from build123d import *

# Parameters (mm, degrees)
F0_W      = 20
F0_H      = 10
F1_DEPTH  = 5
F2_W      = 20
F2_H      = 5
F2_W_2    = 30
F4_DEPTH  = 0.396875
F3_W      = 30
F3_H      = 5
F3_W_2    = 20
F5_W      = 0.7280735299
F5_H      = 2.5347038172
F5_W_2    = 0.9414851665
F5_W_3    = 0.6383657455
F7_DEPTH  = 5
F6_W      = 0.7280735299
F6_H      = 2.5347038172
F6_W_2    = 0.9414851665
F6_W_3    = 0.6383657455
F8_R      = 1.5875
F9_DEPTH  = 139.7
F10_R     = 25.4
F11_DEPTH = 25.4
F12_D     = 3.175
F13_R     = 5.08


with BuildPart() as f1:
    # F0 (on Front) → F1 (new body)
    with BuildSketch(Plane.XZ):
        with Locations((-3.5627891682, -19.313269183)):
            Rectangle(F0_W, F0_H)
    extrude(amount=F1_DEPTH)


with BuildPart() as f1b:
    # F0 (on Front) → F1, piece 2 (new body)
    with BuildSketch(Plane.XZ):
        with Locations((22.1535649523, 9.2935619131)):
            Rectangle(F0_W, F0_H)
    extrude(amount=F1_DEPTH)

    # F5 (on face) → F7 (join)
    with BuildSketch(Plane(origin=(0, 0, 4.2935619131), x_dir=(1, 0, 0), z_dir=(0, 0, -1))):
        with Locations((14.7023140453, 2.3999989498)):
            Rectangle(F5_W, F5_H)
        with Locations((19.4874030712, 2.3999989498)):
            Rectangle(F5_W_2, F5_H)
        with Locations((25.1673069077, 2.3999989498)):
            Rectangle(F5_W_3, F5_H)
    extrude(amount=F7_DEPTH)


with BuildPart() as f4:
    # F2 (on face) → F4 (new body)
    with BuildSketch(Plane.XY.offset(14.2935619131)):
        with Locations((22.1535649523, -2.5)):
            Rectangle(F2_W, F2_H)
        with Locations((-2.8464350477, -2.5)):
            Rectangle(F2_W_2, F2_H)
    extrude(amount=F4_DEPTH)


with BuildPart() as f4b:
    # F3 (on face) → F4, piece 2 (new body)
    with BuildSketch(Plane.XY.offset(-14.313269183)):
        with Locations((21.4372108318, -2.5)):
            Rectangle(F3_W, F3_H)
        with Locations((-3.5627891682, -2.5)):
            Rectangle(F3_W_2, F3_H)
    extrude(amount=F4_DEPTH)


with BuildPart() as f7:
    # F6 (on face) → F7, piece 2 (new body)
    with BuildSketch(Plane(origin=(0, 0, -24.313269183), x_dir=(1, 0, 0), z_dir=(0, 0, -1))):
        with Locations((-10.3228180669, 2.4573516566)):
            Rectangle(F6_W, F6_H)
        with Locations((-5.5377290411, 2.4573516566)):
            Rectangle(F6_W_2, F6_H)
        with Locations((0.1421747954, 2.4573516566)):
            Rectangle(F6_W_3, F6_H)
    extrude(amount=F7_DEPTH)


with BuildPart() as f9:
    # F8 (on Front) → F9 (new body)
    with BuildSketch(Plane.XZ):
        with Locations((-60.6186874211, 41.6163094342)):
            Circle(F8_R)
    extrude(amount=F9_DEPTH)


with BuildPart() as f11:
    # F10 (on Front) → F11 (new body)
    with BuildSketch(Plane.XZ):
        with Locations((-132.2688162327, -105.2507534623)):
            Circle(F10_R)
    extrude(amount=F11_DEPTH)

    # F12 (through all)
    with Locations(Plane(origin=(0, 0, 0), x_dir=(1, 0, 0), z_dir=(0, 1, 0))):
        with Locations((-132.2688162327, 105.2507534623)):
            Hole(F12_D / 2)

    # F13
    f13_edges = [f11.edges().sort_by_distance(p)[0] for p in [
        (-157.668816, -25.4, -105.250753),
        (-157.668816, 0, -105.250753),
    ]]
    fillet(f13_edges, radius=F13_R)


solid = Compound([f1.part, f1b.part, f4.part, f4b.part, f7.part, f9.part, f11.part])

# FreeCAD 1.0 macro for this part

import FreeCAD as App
import Part
import Sketcher
Q = App.Units.Quantity


def edges_at(feature, points):
    """Names of the edges that pass closest to the given points."""
    edges = feature.Shape.Edges
    near = lambda p: min(range(len(edges)), key=lambda i: edges[i].distToShape(Part.Vertex(*p))[0])
    return sorted({f"Edge{near(p) + 1}" for p in points})

doc = App.newDocument("Part")
params = doc.addObject("Spreadsheet::Sheet", "Params")
for row, (alias, value) in enumerate([
    ("pad1_length", "5 mm"),
    ("pad2_length", "5 mm"),
    ("pad3_length", "5 mm"),
    ("pad4_length", "0.015625 in"),
    ("pad5_length", "0.015625 in"),
    ("pad6_length", "5 mm"),
    ("sketch7_diameter", "0.125 in"),
    ("pad7_length", "5.5 in"),
    ("sketch8_diameter", "2 in"),
    ("pad8_length", "1 in"),
    ("sketch9_diameter", "0.125 in"),
    ("hole_diameter", "0.125 in"),
    ("fillet_radius", "0.2 in"),
], start=1):
    params.set(f"A{row}", alias)
    params.set(f"B{row}", "=" + value)
    params.setAlias(f"B{row}", alias)

body = doc.addObject("PartDesign::Body", "Body")

sketch1 = body.newObject("Sketcher::SketchObject", "Sketch")
sketch1.AttachmentSupport = (doc.getObject("XZ_Plane"), [""])
sketch1.MapMode = "FlatFace"
sketch1.addGeometry([
    Part.LineSegment(App.Vector(-14, -14, 0), App.Vector(-14, -24, 0)),
    Part.LineSegment(App.Vector(-14, -24, 0), App.Vector(6, -24, 0)),
    Part.LineSegment(App.Vector(6, -24, 0), App.Vector(6, -14, 0)),
    Part.LineSegment(App.Vector(6, -14, 0), App.Vector(-14, -14, 0)),
], False)
sketch1.addConstraint([
    Sketcher.Constraint("Coincident", 0, 2, 1, 1),
    Sketcher.Constraint("Coincident", 1, 2, 2, 1),
    Sketcher.Constraint("Coincident", 2, 2, 3, 1),
    Sketcher.Constraint("Coincident", 3, 2, 0, 1),
    Sketcher.Constraint("Vertical", 0),
    Sketcher.Constraint("Horizontal", 1),
    Sketcher.Constraint("Vertical", 2),
    Sketcher.Constraint("Horizontal", 3),
    Sketcher.Constraint("DistanceX", 1, 1, 1, 2, 20.0),
    Sketcher.Constraint("DistanceY", 0, 2, 0, 1, 10.0),
    Sketcher.Constraint("DistanceX", 0, 2, -1, 1, 13.562789),
    Sketcher.Constraint("DistanceY", 0, 2, -1, 1, 24.313269),
])
pad1 = body.newObject("PartDesign::Pad", "Pad")
pad1.Profile = sketch1
pad1.setExpression("Length", "Params.pad1_length")
body2 = doc.addObject("PartDesign::Body", "Body001")

sketch2 = body2.newObject("Sketcher::SketchObject", "Sketch001")
sketch2.AttachmentSupport = (doc.getObject("XZ_Plane001"), [""])
sketch2.MapMode = "FlatFace"
sketch2.addGeometry([
    Part.LineSegment(App.Vector(12, 14, 0), App.Vector(12, 4, 0)),
    Part.LineSegment(App.Vector(12, 4, 0), App.Vector(32, 4, 0)),
    Part.LineSegment(App.Vector(32, 4, 0), App.Vector(32, 14, 0)),
    Part.LineSegment(App.Vector(32, 14, 0), App.Vector(12, 14, 0)),
], False)
sketch2.addConstraint([
    Sketcher.Constraint("Coincident", 0, 2, 1, 1),
    Sketcher.Constraint("Coincident", 1, 2, 2, 1),
    Sketcher.Constraint("Coincident", 2, 2, 3, 1),
    Sketcher.Constraint("Coincident", 3, 2, 0, 1),
    Sketcher.Constraint("Vertical", 0),
    Sketcher.Constraint("Horizontal", 1),
    Sketcher.Constraint("Vertical", 2),
    Sketcher.Constraint("Horizontal", 3),
    Sketcher.Constraint("DistanceX", 1, 1, 1, 2, 20.0),
    Sketcher.Constraint("DistanceY", 0, 2, 0, 1, 10.0),
    Sketcher.Constraint("DistanceY", -1, 1, 0, 2, 4.293562),
    Sketcher.Constraint("DistanceX", -1, 1, 0, 2, 12.153565),
])
pad2 = body2.newObject("PartDesign::Pad", "Pad001")
pad2.Profile = sketch2
pad2.setExpression("Length", "Params.pad2_length")

sketch3 = body2.newObject("Sketcher::SketchObject", "Sketch002")
sketch3.AttachmentSupport = (doc.getObject("XY_Plane001"), [""])
sketch3.MapMode = "FlatFace"
sketch3.AttachmentOffset = App.Placement(App.Vector(0, 0, 4.293562), App.Rotation())
sketch3.addGeometry([
    Part.LineSegment(App.Vector(14.3, -3.7, 0), App.Vector(14.3, -1.1, 0)),
    Part.LineSegment(App.Vector(14.3, -1.1, 0), App.Vector(15.1, -1.1, 0)),
    Part.LineSegment(App.Vector(15.1, -1.1, 0), App.Vector(15.1, -3.7, 0)),
    Part.LineSegment(App.Vector(15.1, -3.7, 0), App.Vector(14.3, -3.7, 0)),
    Part.LineSegment(App.Vector(19, -3.7, 0), App.Vector(19, -1.1, 0)),
    Part.LineSegment(App.Vector(19, -1.1, 0), App.Vector(20, -1.1, 0)),
    Part.LineSegment(App.Vector(20, -1.1, 0), App.Vector(20, -3.7, 0)),
    Part.LineSegment(App.Vector(20, -3.7, 0), App.Vector(19, -3.7, 0)),
    Part.LineSegment(App.Vector(24.8, -3.7, 0), App.Vector(24.8, -1.1, 0)),
    Part.LineSegment(App.Vector(24.8, -1.1, 0), App.Vector(25.5, -1.1, 0)),
    Part.LineSegment(App.Vector(25.5, -1.1, 0), App.Vector(25.5, -3.7, 0)),
    Part.LineSegment(App.Vector(25.5, -3.7, 0), App.Vector(24.8, -3.7, 0)),
], False)
sketch3.addConstraint([
    Sketcher.Constraint("Coincident", 0, 2, 1, 1),
    Sketcher.Constraint("Coincident", 1, 2, 2, 1),
    Sketcher.Constraint("Coincident", 2, 2, 3, 1),
    Sketcher.Constraint("Coincident", 3, 2, 0, 1),
    Sketcher.Constraint("Coincident", 4, 2, 5, 1),
    Sketcher.Constraint("Coincident", 5, 2, 6, 1),
    Sketcher.Constraint("Coincident", 6, 2, 7, 1),
    Sketcher.Constraint("Coincident", 7, 2, 4, 1),
    Sketcher.Constraint("Coincident", 8, 2, 9, 1),
    Sketcher.Constraint("Coincident", 9, 2, 10, 1),
    Sketcher.Constraint("Coincident", 10, 2, 11, 1),
    Sketcher.Constraint("Coincident", 11, 2, 8, 1),
    Sketcher.Constraint("Vertical", 0),
    Sketcher.Constraint("Horizontal", 1),
    Sketcher.Constraint("Vertical", 2),
    Sketcher.Constraint("Horizontal", 3),
    Sketcher.Constraint("Vertical", 4),
    Sketcher.Constraint("Horizontal", 5),
    Sketcher.Constraint("Vertical", 6),
    Sketcher.Constraint("Horizontal", 7),
    Sketcher.Constraint("Vertical", 8),
    Sketcher.Constraint("Horizontal", 9),
    Sketcher.Constraint("Vertical", 10),
    Sketcher.Constraint("Horizontal", 11),
    Sketcher.Constraint("Horizontal", 1, 2, 4, 2),
    Sketcher.Constraint("Horizontal", 3, 2, 6, 2),
    Sketcher.Constraint("Horizontal", 5, 2, 8, 2),
    Sketcher.Constraint("Horizontal", 7, 2, 10, 2),
    Sketcher.Constraint("DistanceX", 1, 1, 1, 2, 0.728074),
    Sketcher.Constraint("DistanceX", 5, 1, 5, 2, 0.941485),
    Sketcher.Constraint("DistanceX", 9, 1, 9, 2, 0.638366),
    Sketcher.Constraint("DistanceY", 0, 1, 0, 2, 2.534704),
    Sketcher.Constraint("DistanceX", -1, 1, 1, 2, 15.066351),
    Sketcher.Constraint("DistanceY", 2, 2, -1, 1, 3.667351),
    Sketcher.Constraint("DistanceX", -1, 1, 4, 2, 19.01666),
    Sketcher.Constraint("DistanceX", -1, 1, 9, 2, 25.48649),
])
pad3 = body2.newObject("PartDesign::Pad", "Pad002")
pad3.Profile = sketch3
pad3.setExpression("Length", "Params.pad3_length")
pad3.Reversed = True
body3 = doc.addObject("PartDesign::Body", "Body002")

sketch4 = body3.newObject("Sketcher::SketchObject", "Sketch003")
sketch4.AttachmentSupport = (doc.getObject("XY_Plane002"), [""])
sketch4.MapMode = "FlatFace"
sketch4.AttachmentOffset = App.Placement(App.Vector(0, 0, 14.293562), App.Rotation())
sketch4.addGeometry([
    Part.LineSegment(App.Vector(32, -5, 0), App.Vector(32, 0, 0)),
    Part.LineSegment(App.Vector(32, 0, 0), App.Vector(-18, 0, 0)),
    Part.LineSegment(App.Vector(-18, 0, 0), App.Vector(-18, -5, 0)),
    Part.LineSegment(App.Vector(-18, -5, 0), App.Vector(32, -5, 0)),
], False)
sketch4.addConstraint([
    Sketcher.Constraint("Coincident", 0, 2, 1, 1),
    Sketcher.Constraint("Coincident", 1, 2, 2, 1),
    Sketcher.Constraint("Coincident", 2, 2, 3, 1),
    Sketcher.Constraint("Coincident", 3, 2, 0, 1),
    Sketcher.Constraint("Vertical", 0),
    Sketcher.Constraint("Horizontal", 1),
    Sketcher.Constraint("Vertical", 2),
    Sketcher.Constraint("Horizontal", 3),
    Sketcher.Constraint("PointOnObject", 0, 2, -1),
    Sketcher.Constraint("DistanceX", 1, 2, 1, 1, 50.0),
    Sketcher.Constraint("DistanceY", 0, 1, 0, 2, 5.0),
    Sketcher.Constraint("DistanceX", -1, 1, 0, 2, 32.153565),
])
pad4 = body3.newObject("PartDesign::Pad", "Pad003")
pad4.Profile = sketch4
pad4.setExpression("Length", "Params.pad4_length")
body4 = doc.addObject("PartDesign::Body", "Body003")

sketch5 = body4.newObject("Sketcher::SketchObject", "Sketch004")
sketch5.AttachmentSupport = (doc.getObject("XY_Plane003"), [""])
sketch5.MapMode = "FlatFace"
sketch5.AttachmentOffset = App.Placement(App.Vector(0, 0, -14.313269), App.Rotation())
sketch5.addGeometry([
    Part.LineSegment(App.Vector(36, -5, 0), App.Vector(36, 0, 0)),
    Part.LineSegment(App.Vector(36, 0, 0), App.Vector(-14, 0, 0)),
    Part.LineSegment(App.Vector(-14, 0, 0), App.Vector(-14, -5, 0)),
    Part.LineSegment(App.Vector(-14, -5, 0), App.Vector(36, -5, 0)),
], False)
sketch5.addConstraint([
    Sketcher.Constraint("Coincident", 0, 2, 1, 1),
    Sketcher.Constraint("Coincident", 1, 2, 2, 1),
    Sketcher.Constraint("Coincident", 2, 2, 3, 1),
    Sketcher.Constraint("Coincident", 3, 2, 0, 1),
    Sketcher.Constraint("Vertical", 0),
    Sketcher.Constraint("Horizontal", 1),
    Sketcher.Constraint("Vertical", 2),
    Sketcher.Constraint("Horizontal", 3),
    Sketcher.Constraint("PointOnObject", 0, 2, -1),
    Sketcher.Constraint("DistanceX", 1, 2, 1, 1, 50.0),
    Sketcher.Constraint("DistanceY", 0, 1, 0, 2, 5.0),
    Sketcher.Constraint("DistanceX", -1, 1, 0, 2, 36.437211),
])
pad5 = body4.newObject("PartDesign::Pad", "Pad004")
pad5.Profile = sketch5
pad5.setExpression("Length", "Params.pad5_length")
body5 = doc.addObject("PartDesign::Body", "Body004")
body5.AllowCompound = True

sketch6 = body5.newObject("Sketcher::SketchObject", "Sketch005")
sketch6.AttachmentSupport = (doc.getObject("XY_Plane004"), [""])
sketch6.MapMode = "FlatFace"
sketch6.AttachmentOffset = App.Placement(App.Vector(0, 0, -24.313269), App.Rotation())
sketch6.addGeometry([
    Part.LineSegment(App.Vector(-10.7, -3.7, 0), App.Vector(-10.7, -1.2, 0)),
    Part.LineSegment(App.Vector(-10.7, -1.2, 0), App.Vector(-10, -1.2, 0)),
    Part.LineSegment(App.Vector(-10, -1.2, 0), App.Vector(-10, -3.7, 0)),
    Part.LineSegment(App.Vector(-10, -3.7, 0), App.Vector(-10.7, -3.7, 0)),
    Part.LineSegment(App.Vector(-6, -3.7, 0), App.Vector(-6, -1.2, 0)),
    Part.LineSegment(App.Vector(-6, -1.2, 0), App.Vector(-5.1, -1.2, 0)),
    Part.LineSegment(App.Vector(-5.1, -1.2, 0), App.Vector(-5.1, -3.7, 0)),
    Part.LineSegment(App.Vector(-5.1, -3.7, 0), App.Vector(-6, -3.7, 0)),
    Part.LineSegment(App.Vector(-0.2, -3.7, 0), App.Vector(-0.2, -1.2, 0)),
    Part.LineSegment(App.Vector(-0.2, -1.2, 0), App.Vector(0.5, -1.2, 0)),
    Part.LineSegment(App.Vector(0.5, -1.2, 0), App.Vector(0.5, -3.7, 0)),
    Part.LineSegment(App.Vector(0.5, -3.7, 0), App.Vector(-0.2, -3.7, 0)),
], False)
sketch6.addConstraint([
    Sketcher.Constraint("Coincident", 0, 2, 1, 1),
    Sketcher.Constraint("Coincident", 1, 2, 2, 1),
    Sketcher.Constraint("Coincident", 2, 2, 3, 1),
    Sketcher.Constraint("Coincident", 3, 2, 0, 1),
    Sketcher.Constraint("Coincident", 4, 2, 5, 1),
    Sketcher.Constraint("Coincident", 5, 2, 6, 1),
    Sketcher.Constraint("Coincident", 6, 2, 7, 1),
    Sketcher.Constraint("Coincident", 7, 2, 4, 1),
    Sketcher.Constraint("Coincident", 8, 2, 9, 1),
    Sketcher.Constraint("Coincident", 9, 2, 10, 1),
    Sketcher.Constraint("Coincident", 10, 2, 11, 1),
    Sketcher.Constraint("Coincident", 11, 2, 8, 1),
    Sketcher.Constraint("Vertical", 0),
    Sketcher.Constraint("Horizontal", 1),
    Sketcher.Constraint("Vertical", 2),
    Sketcher.Constraint("Horizontal", 3),
    Sketcher.Constraint("Vertical", 4),
    Sketcher.Constraint("Horizontal", 5),
    Sketcher.Constraint("Vertical", 6),
    Sketcher.Constraint("Horizontal", 7),
    Sketcher.Constraint("Vertical", 8),
    Sketcher.Constraint("Horizontal", 9),
    Sketcher.Constraint("Vertical", 10),
    Sketcher.Constraint("Horizontal", 11),
    Sketcher.Constraint("Horizontal", 1, 2, 4, 2),
    Sketcher.Constraint("Horizontal", 3, 2, 6, 2),
    Sketcher.Constraint("Horizontal", 5, 2, 8, 2),
    Sketcher.Constraint("Horizontal", 7, 2, 10, 2),
    Sketcher.Constraint("DistanceY", 0, 2, -1, 1, 1.19),
    Sketcher.Constraint("DistanceX", 1, 1, 1, 2, 0.728074),
    Sketcher.Constraint("DistanceX", 5, 1, 5, 2, 0.941485),
    Sketcher.Constraint("DistanceX", 9, 1, 9, 2, 0.638366),
    Sketcher.Constraint("DistanceY", 0, 1, 0, 2, 2.534704),
    Sketcher.Constraint("DistanceX", 1, 2, -1, 1, 9.958781),
    Sketcher.Constraint("DistanceX", 4, 2, -1, 1, 6.008472),
    Sketcher.Constraint("DistanceX", 8, 2, -1, 1, 0.177008),
])
pad6 = body5.newObject("PartDesign::Pad", "Pad005")
pad6.Profile = sketch6
pad6.setExpression("Length", "Params.pad6_length")
pad6.Reversed = True
body6 = doc.addObject("PartDesign::Body", "Body005")

sketch7 = body6.newObject("Sketcher::SketchObject", "Sketch006")
sketch7.AttachmentSupport = (doc.getObject("XZ_Plane005"), [""])
sketch7.MapMode = "FlatFace"
sketch7.addGeometry(Part.Circle(App.Vector(-60.6, 41.6, 0), App.Vector(0, 0, 1), 1.6), False)
sketch7.addConstraint([
    Sketcher.Constraint("Diameter", 0, Q("0.125 in")),
    Sketcher.Constraint("DistanceY", -1, 1, 0, 3, 41.616309),
    Sketcher.Constraint("DistanceX", 0, 3, -1, 1, 60.618687),
])
sketch7.setExpression("Constraints[0]", "Params.sketch7_diameter")
pad7 = body6.newObject("PartDesign::Pad", "Pad006")
pad7.Profile = sketch7
pad7.setExpression("Length", "Params.pad7_length")
body7 = doc.addObject("PartDesign::Body", "Body006")

sketch8 = body7.newObject("Sketcher::SketchObject", "Sketch007")
sketch8.AttachmentSupport = (doc.getObject("XZ_Plane006"), [""])
sketch8.MapMode = "FlatFace"
sketch8.addGeometry(Part.Circle(App.Vector(-132, -105, 0), App.Vector(0, 0, 1), 25), False)
sketch8.addConstraint([
    Sketcher.Constraint("Diameter", 0, Q("2 in")),
    Sketcher.Constraint("DistanceX", 0, 3, -1, 1, 132.268816),
    Sketcher.Constraint("DistanceY", 0, 3, -1, 1, 105.250753),
])
sketch8.setExpression("Constraints[0]", "Params.sketch8_diameter")
pad8 = body7.newObject("PartDesign::Pad", "Pad007")
pad8.Profile = sketch8
pad8.setExpression("Length", "Params.pad8_length")

sketch9 = body7.newObject("Sketcher::SketchObject", "Sketch008")
sketch9.AttachmentSupport = (doc.getObject("XZ_Plane006"), [""])
sketch9.MapMode = "FlatFace"
sketch9.addGeometry(Part.Circle(App.Vector(-132.3, -105.3, 0), App.Vector(0, 0, 1), 1.6), False)
sketch9.addConstraint([
    Sketcher.Constraint("Diameter", 0, Q("0.125 in")),
    Sketcher.Constraint("DistanceX", 0, 3, -1, 1, 132.268816),
    Sketcher.Constraint("DistanceY", 0, 3, -1, 1, 105.250753),
])
sketch9.setExpression("Constraints[0]", "Params.sketch9_diameter")
doc.recompute()
hole = body7.newObject("PartDesign::Hole", "Hole")
hole.Profile = sketch9
hole.ThreadType = "None"
hole.setExpression("Diameter", "Params.hole_diameter")
hole.DepthType = "ThroughAll"
hole.Reversed = True
doc.recompute()

fillet = body7.newObject("PartDesign::Fillet", "Fillet")
fillet.Base = (hole, edges_at(hole, [(-157.669, -25.4, -105.251), (-157.669, 0, -105.251)]))
fillet.setExpression("Radius", "Params.fillet_radius")

doc.recompute()
